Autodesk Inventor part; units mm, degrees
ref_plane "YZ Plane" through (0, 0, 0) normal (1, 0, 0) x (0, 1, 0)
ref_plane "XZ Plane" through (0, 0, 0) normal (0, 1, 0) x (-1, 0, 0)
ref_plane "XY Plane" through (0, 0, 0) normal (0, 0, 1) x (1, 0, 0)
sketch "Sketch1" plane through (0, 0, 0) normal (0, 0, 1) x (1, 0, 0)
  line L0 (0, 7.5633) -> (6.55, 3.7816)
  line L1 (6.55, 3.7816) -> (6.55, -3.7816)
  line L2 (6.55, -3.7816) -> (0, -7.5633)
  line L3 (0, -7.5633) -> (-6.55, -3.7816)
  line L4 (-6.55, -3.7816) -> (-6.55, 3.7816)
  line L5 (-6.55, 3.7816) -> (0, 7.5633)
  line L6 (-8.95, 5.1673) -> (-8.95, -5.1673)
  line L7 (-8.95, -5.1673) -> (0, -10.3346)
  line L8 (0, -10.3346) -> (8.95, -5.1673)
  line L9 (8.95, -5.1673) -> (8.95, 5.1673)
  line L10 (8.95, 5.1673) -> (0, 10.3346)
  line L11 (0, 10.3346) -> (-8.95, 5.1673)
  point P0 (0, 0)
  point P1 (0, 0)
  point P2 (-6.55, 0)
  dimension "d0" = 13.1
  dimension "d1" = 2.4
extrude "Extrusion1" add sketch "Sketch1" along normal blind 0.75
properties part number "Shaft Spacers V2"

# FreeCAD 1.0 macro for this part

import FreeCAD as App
import Part
import Sketcher
Q = App.Units.Quantity

doc = App.newDocument("Part")
body = doc.addObject("PartDesign::Body", "Body")

sketch1 = body.newObject("Sketcher::SketchObject", "Sketch")
sketch1.AttachmentSupport = (doc.getObject("XY_Plane"), [""])
sketch1.MapMode = "FlatFace"
sketch1.addGeometry([
    Part.LineSegment(App.Vector(0, 10.3346, 0), App.Vector(-8.95, 5.1673, 0)),
    Part.LineSegment(App.Vector(-8.95, 5.1673, 0), App.Vector(-8.95, -5.1673, 0)),
    Part.LineSegment(App.Vector(-8.95, -5.1673, 0), App.Vector(0, -10.3346, 0)),
    Part.LineSegment(App.Vector(0, -10.3346, 0), App.Vector(8.95, -5.1673, 0)),
    Part.LineSegment(App.Vector(8.95, -5.1673, 0), App.Vector(8.95, 5.1673, 0)),
    Part.LineSegment(App.Vector(8.95, 5.1673, 0), App.Vector(0, 10.3346, 0)),
    Part.LineSegment(App.Vector(-6.55, 3.7816, 0), App.Vector(0, 7.5633, 0)),
    Part.LineSegment(App.Vector(0, 7.5633, 0), App.Vector(6.55, 3.7816, 0)),
    Part.LineSegment(App.Vector(6.55, 3.7816, 0), App.Vector(6.55, -3.7816, 0)),
    Part.LineSegment(App.Vector(6.55, -3.7816, 0), App.Vector(0, -7.5633, 0)),
    Part.LineSegment(App.Vector(0, -7.5633, 0), App.Vector(-6.55, -3.7816, 0)),
    Part.LineSegment(App.Vector(-6.55, -3.7816, 0), App.Vector(-6.55, 3.7816, 0)),
], False)
sketch1.addConstraint([
    Sketcher.Constraint("Coincident", 0, 2, 1, 1),
    Sketcher.Constraint("Coincident", 1, 2, 2, 1),
    Sketcher.Constraint("Coincident", 2, 2, 3, 1),
    Sketcher.Constraint("Coincident", 3, 2, 4, 1),
    Sketcher.Constraint("Coincident", 4, 2, 5, 1),
    Sketcher.Constraint("Coincident", 5, 2, 0, 1),
    Sketcher.Constraint("Coincident", 6, 2, 7, 1),
    Sketcher.Constraint("Coincident", 7, 2, 8, 1),
    Sketcher.Constraint("Coincident", 8, 2, 9, 1),
    Sketcher.Constraint("Coincident", 9, 2, 10, 1),
    Sketcher.Constraint("Coincident", 10, 2, 11, 1),
    Sketcher.Constraint("Coincident", 11, 2, 6, 1),
    Sketcher.Constraint("Vertical", 1),
    Sketcher.Constraint("Vertical", 4),
    Sketcher.Constraint("Vertical", 8),
    Sketcher.Constraint("Vertical", 11),
    Sketcher.Constraint("Symmetric", 0, 2, 3, 2, -1, 1),
    Sketcher.Constraint("Symmetric", 2, 2, 5, 2, -1, 1),
    Sketcher.Constraint("Symmetric", 6, 2, 9, 2, -1, 1),
    Sketcher.Constraint("Symmetric", 7, 2, 10, 2, -1, 1),
    Sketcher.Constraint("PointOnObject", 2, 2, -2),
    Sketcher.Constraint("PointOnObject", 6, 2, -2),
    Sketcher.Constraint("Parallel", 2, 5),
    Sketcher.Constraint("Parallel", 3, 6),
    Sketcher.Constraint("Parallel", 5, 7),
    Sketcher.Constraint("Parallel", 6, 9),
    Sketcher.Constraint("Horizontal", 1, 2, 3, 2),
    Sketcher.Constraint("DistanceX", 7, 2, 4, 2, 2.4),
    Sketcher.Constraint("Angle", 0, Q("-150 deg")),
    Sketcher.Constraint("DistanceX", 1, 2, 3, 2, 17.9),
    Sketcher.Constraint("DistanceY", 1, 2, 1, 1, 10.3346),
    Sketcher.Constraint("DistanceY", 8, 2, 8, 1, 7.5632),
])
pad1 = body.newObject("PartDesign::Pad", "Pad")
pad1.Profile = sketch1
pad1.Length = 0.75

doc.recompute()
